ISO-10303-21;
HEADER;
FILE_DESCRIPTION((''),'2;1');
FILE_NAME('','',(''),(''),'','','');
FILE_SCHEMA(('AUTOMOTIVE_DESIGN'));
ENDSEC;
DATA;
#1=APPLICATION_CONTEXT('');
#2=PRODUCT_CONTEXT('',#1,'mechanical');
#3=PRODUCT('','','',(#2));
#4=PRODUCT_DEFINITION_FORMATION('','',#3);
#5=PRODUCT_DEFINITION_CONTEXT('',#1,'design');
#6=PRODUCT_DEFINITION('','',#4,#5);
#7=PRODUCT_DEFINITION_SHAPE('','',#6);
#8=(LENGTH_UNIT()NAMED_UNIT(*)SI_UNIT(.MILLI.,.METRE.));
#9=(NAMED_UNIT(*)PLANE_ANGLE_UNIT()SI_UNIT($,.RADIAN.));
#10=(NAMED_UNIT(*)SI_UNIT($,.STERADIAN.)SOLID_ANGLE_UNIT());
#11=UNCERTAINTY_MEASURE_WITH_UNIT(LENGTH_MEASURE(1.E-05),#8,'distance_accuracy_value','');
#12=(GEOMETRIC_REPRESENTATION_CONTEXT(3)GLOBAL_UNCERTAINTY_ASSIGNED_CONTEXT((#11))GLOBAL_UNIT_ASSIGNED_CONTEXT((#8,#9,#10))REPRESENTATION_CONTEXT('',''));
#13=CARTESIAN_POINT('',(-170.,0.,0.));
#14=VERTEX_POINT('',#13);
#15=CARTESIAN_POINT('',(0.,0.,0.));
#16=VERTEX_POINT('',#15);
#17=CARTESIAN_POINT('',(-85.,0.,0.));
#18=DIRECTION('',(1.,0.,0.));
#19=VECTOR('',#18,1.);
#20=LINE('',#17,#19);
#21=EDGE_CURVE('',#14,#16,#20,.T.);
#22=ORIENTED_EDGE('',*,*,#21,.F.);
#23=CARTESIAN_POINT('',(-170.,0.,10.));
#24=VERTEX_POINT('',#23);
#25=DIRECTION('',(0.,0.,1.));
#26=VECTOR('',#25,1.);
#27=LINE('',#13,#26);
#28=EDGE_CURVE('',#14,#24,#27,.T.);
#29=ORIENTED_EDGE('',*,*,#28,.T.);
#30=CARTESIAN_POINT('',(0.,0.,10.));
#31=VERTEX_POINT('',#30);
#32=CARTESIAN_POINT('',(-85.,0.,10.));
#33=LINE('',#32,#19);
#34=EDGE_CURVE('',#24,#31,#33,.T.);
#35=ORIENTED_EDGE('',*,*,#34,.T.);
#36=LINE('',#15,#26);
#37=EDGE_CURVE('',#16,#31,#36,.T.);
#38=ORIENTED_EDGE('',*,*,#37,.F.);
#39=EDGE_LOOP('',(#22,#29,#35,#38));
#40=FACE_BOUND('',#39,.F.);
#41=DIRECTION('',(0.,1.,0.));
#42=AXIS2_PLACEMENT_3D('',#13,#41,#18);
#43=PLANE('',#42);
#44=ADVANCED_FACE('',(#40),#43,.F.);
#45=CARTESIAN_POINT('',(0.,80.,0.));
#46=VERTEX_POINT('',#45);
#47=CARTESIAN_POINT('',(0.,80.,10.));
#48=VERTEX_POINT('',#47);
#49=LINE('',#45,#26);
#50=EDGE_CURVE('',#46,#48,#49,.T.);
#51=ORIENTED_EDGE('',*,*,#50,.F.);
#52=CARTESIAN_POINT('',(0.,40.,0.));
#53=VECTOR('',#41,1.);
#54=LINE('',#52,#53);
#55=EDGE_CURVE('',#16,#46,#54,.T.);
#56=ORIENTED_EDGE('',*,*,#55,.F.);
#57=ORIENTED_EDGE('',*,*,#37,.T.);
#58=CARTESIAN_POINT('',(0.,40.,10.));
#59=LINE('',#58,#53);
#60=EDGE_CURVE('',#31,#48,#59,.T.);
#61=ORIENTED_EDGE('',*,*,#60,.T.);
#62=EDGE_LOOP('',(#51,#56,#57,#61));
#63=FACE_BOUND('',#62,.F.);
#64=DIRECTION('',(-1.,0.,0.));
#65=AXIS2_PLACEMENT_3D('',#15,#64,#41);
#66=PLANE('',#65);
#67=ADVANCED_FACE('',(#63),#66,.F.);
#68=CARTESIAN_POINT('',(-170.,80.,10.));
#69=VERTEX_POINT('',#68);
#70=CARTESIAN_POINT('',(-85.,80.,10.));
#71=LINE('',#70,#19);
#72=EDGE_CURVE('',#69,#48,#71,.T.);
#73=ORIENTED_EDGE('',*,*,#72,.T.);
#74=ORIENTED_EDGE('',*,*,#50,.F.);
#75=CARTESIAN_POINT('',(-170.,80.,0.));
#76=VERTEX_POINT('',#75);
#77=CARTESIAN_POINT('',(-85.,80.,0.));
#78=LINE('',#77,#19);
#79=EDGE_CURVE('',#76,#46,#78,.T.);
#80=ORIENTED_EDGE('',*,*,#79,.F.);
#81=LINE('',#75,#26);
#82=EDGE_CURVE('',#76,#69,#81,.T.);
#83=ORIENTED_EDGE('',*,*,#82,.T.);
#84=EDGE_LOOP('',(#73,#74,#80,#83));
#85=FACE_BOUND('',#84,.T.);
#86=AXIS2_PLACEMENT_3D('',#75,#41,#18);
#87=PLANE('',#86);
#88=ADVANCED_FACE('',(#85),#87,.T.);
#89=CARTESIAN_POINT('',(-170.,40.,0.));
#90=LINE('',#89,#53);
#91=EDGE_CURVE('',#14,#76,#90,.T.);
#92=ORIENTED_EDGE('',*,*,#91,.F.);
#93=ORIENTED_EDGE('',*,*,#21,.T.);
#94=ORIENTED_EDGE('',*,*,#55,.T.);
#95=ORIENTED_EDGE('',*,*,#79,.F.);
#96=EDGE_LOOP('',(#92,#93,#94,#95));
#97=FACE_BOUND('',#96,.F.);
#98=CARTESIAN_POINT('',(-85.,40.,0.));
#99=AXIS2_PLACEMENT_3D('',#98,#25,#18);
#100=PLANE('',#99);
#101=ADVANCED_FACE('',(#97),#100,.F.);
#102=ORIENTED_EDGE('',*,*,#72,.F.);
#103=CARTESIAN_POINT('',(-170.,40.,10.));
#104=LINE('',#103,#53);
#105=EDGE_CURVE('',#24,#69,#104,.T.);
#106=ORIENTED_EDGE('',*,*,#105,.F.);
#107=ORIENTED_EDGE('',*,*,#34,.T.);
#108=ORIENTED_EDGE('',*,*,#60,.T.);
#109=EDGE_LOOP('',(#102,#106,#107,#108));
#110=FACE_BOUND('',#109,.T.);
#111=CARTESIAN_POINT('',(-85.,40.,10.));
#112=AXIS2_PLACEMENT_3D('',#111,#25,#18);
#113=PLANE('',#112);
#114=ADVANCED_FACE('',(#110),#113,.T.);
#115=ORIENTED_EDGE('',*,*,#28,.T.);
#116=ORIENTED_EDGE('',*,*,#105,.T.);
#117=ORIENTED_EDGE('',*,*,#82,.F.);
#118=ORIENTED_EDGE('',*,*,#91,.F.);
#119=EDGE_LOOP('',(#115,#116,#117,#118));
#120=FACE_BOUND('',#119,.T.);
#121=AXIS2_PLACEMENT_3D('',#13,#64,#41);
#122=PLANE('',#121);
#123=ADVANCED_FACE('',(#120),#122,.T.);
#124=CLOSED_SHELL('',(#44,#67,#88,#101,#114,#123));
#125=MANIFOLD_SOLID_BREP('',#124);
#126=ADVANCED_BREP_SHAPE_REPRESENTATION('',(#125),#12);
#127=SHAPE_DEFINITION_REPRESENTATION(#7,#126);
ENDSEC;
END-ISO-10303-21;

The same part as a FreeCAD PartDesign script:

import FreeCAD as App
import Part
import Sketcher


def add_polygon(sketch, points):
    """Adds a closed chain of lines whose ends are joined by coincident constraints."""
    first, n = sketch.GeometryCount, len(points)
    for a, b in zip(points, points[1:] + points[:1]):
        sketch.addGeometry(Part.LineSegment(App.Vector(*a, 0), App.Vector(*b, 0)), False)
    for i in range(n):
        sketch.addConstraint(Sketcher.Constraint("Coincident", first + i, 2, first + (i + 1) % n, 1))

doc = App.newDocument("Part")
body = doc.addObject("PartDesign::Body", "Body")

sketch1 = body.newObject("Sketcher::SketchObject", "Sketch")
sketch1.AttachmentSupport = (doc.getObject("XY_Plane"), [""])
sketch1.MapMode = "FlatFace"
add_polygon(sketch1, [(-170, 80), (-170, 0), (0, 0), (0, 80)])
sketch1.addConstraint(Sketcher.Constraint("Vertical", 0))
sketch1.addConstraint(Sketcher.Constraint("Horizontal", 1))
sketch1.addConstraint(Sketcher.Constraint("Vertical", 2))
sketch1.addConstraint(Sketcher.Constraint("Horizontal", 3))
sketch1.addConstraint(Sketcher.Constraint("Coincident", 1, 2, -1, 1))
sketch1.addConstraint(Sketcher.Constraint("DistanceX", 1, 1, 1, 2, 170.0))
sketch1.addConstraint(Sketcher.Constraint("DistanceY", 0, 2, 0, 1, 80.0))
pad1 = body.newObject("PartDesign::Pad", "Pad")
pad1.Profile = sketch1
pad1.Length = 10

doc.recompute()
